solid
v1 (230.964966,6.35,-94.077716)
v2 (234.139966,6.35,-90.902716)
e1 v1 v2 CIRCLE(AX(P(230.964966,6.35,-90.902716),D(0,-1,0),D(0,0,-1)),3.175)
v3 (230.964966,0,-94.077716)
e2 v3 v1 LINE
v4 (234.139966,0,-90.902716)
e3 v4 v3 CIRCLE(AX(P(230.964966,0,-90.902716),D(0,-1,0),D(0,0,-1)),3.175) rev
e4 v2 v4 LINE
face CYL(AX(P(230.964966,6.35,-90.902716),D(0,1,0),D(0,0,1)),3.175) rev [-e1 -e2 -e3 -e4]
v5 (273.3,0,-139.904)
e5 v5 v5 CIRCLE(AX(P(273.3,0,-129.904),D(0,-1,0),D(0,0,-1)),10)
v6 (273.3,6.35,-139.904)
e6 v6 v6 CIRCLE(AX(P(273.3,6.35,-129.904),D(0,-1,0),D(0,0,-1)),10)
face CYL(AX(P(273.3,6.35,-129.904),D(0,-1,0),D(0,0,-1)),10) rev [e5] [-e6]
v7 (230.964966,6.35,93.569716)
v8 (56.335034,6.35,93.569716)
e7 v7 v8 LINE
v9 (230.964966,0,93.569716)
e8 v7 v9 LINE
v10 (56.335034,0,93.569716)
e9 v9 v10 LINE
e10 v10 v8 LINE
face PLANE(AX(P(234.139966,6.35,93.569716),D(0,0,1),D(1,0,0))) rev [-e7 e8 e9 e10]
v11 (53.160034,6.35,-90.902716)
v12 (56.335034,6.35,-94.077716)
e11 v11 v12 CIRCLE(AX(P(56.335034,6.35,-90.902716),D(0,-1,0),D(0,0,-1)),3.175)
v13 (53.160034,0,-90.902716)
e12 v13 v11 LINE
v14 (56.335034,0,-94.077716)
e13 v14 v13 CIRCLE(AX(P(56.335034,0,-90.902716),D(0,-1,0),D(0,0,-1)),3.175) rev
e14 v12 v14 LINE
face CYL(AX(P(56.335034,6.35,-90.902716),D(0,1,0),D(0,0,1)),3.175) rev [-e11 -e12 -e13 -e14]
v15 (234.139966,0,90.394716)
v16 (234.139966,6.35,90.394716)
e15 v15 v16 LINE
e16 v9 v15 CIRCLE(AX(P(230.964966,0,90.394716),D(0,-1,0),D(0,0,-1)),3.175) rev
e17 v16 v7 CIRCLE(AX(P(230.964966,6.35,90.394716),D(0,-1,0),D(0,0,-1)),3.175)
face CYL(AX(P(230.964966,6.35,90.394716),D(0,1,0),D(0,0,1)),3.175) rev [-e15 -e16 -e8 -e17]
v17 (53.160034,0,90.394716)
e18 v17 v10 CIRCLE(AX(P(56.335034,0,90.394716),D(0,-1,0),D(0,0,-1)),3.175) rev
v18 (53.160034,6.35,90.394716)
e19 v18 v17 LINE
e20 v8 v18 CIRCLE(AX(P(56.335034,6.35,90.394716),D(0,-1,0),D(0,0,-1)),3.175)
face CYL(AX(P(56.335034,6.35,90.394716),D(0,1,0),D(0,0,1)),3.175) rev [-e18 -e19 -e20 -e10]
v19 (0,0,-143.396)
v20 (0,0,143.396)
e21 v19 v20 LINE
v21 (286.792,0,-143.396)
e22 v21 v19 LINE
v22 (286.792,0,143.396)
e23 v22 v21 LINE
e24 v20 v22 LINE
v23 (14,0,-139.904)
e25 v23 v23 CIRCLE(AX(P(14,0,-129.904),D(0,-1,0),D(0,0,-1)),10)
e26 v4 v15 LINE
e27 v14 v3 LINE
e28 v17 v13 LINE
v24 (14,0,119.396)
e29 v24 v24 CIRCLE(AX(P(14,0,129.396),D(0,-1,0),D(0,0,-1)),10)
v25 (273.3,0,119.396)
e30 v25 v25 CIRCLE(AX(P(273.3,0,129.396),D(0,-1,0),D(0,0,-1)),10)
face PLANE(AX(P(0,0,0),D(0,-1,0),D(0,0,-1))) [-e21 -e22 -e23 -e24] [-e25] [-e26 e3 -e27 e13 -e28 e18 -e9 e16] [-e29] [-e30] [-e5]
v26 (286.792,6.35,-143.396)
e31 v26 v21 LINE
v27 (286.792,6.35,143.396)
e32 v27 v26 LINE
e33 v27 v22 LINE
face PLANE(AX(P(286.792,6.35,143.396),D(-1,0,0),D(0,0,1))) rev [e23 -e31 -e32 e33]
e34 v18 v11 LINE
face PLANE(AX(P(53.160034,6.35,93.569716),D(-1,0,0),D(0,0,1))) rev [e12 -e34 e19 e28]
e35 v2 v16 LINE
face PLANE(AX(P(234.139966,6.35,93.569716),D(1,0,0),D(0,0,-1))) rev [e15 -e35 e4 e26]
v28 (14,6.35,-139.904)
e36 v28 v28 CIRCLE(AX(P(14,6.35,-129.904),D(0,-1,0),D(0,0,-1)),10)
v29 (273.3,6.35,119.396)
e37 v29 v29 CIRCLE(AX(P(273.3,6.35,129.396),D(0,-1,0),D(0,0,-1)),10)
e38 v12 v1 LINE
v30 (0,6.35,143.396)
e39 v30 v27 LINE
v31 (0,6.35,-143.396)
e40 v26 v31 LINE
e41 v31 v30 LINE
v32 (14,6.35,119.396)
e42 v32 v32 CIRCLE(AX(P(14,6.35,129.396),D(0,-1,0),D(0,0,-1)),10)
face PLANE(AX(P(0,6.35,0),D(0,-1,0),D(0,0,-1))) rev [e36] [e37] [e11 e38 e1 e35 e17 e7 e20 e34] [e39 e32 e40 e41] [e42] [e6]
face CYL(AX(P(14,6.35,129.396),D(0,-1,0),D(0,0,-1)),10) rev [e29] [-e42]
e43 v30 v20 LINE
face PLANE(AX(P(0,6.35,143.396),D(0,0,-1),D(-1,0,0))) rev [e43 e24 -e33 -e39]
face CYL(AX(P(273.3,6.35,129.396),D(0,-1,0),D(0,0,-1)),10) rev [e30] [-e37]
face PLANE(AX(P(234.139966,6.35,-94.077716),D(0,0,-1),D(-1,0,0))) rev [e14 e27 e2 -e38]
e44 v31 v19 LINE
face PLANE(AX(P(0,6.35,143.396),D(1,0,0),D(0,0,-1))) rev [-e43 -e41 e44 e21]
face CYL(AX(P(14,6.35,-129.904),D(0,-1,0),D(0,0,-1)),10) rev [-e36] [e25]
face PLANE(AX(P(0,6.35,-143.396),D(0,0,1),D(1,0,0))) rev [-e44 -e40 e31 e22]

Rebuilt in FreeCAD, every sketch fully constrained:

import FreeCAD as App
import Part
import Sketcher
Q = App.Units.Quantity


def edges_at(feature, points):
    """Names of the edges that pass closest to the given points."""
    edges = feature.Shape.Edges
    near = lambda p: min(range(len(edges)), key=lambda i: edges[i].distToShape(Part.Vertex(*p))[0])
    return sorted({f"Edge{near(p) + 1}" for p in points})

doc = App.newDocument("Part")
body = doc.addObject("PartDesign::Body", "Body")

# Sketch on XZ plane
sketch1 = body.newObject("Sketcher::SketchObject", "Sketch")
sketch1.AttachmentSupport = (doc.getObject("XZ_Plane"), [""])
sketch1.MapMode = "FlatFace"
sketch1.addGeometry([
    Part.LineSegment(App.Vector(0, -143, 0), App.Vector(0, 143, 0)),
    Part.LineSegment(App.Vector(0, 143, 0), App.Vector(287, 143, 0)),
    Part.LineSegment(App.Vector(287, 143, 0), App.Vector(287, -143, 0)),
    Part.LineSegment(App.Vector(287, -143, 0), App.Vector(0, -143, 0)),
], False)
sketch1.addConstraint([
    Sketcher.Constraint("Coincident", 0, 2, 1, 1),
    Sketcher.Constraint("Coincident", 1, 2, 2, 1),
    Sketcher.Constraint("Coincident", 2, 2, 3, 1),
    Sketcher.Constraint("Coincident", 3, 2, 0, 1),
    Sketcher.Constraint("Vertical", 0),
    Sketcher.Constraint("Horizontal", 1),
    Sketcher.Constraint("Vertical", 2),
    Sketcher.Constraint("Horizontal", 3),
    Sketcher.Constraint("Symmetric", 0, 2, 3, 2, -1, 1),
    Sketcher.Constraint("Equal", 3, 0),
    Sketcher.Constraint("DistanceX", 1, 1, 1, 2, Q("286.792 mm")),
])
pad1 = body.newObject("PartDesign::Pad", "Pad")
pad1.Profile = sketch1
pad1.Length = Q("0.25 in")
pad1.Reversed = True

# Sketch on XZ plane
sketch2 = body.newObject("Sketcher::SketchObject", "Sketch001")
sketch2.AttachmentSupport = (doc.getObject("XZ_Plane"), [""])
sketch2.MapMode = "FlatFace"
sketch2.addGeometry([
    Part.Circle(App.Vector(273, -130, 0), App.Vector(0, 0, 1), 10),  # 0
    Part.Circle(App.Vector(14, -130, 0), App.Vector(0, 0, 1), 10),  # 1
    Part.Circle(App.Vector(14, 129, 0), App.Vector(0, 0, 1), 10),  # 2
    Part.Circle(App.Vector(273, 129, 0), App.Vector(0, 0, 1), 10),  # 3
    Part.LineSegment(App.Vector(53, 94, 0), App.Vector(53, -94, 0)),  # 4
    Part.LineSegment(App.Vector(53, -94, 0), App.Vector(234, -94, 0)),  # 5
    Part.LineSegment(App.Vector(234, -94, 0), App.Vector(234, 94, 0)),  # 6
    Part.LineSegment(App.Vector(234, 94, 0), App.Vector(53, 94, 0)),  # 7
], False)
sketch2.addConstraint([
    Sketcher.Constraint("Coincident", 4, 2, 5, 1),
    Sketcher.Constraint("Coincident", 5, 2, 6, 1),
    Sketcher.Constraint("Coincident", 6, 2, 7, 1),
    Sketcher.Constraint("Coincident", 7, 2, 4, 1),
    Sketcher.Constraint("Vertical", 4),
    Sketcher.Constraint("Horizontal", 5),
    Sketcher.Constraint("Vertical", 6),
    Sketcher.Constraint("Horizontal", 7),
    Sketcher.Constraint("Equal", 0, 1),
    Sketcher.Constraint("Equal", 1, 2),
    Sketcher.Constraint("Equal", 2, 3),
    Sketcher.Constraint("Horizontal", 0, 3, 1, 3),
    Sketcher.Constraint("Horizontal", 2, 3, 3, 3),
    Sketcher.Constraint("Vertical", 1, 3, 2, 3),
    Sketcher.Constraint("Vertical", 0, 3, 3, 3),
    Sketcher.Constraint("Diameter", 0, Q("20 mm")),
    Sketcher.Constraint("DistanceX", -1, 1, 0, 3, Q("273.3 mm")),
    Sketcher.Constraint("DistanceY", 0, 3, -1, 1, Q("129.904 mm")),
    Sketcher.Constraint("DistanceX", -1, 1, 1, 3, Q("14 mm")),
    Sketcher.Constraint("DistanceY", -1, 1, 2, 3, Q("129.396 mm")),
    Sketcher.Constraint("DistanceX", 5, 1, 5, 2, Q("180.979932 mm")),
    Sketcher.Constraint("DistanceY", 4, 2, 4, 1, Q("187.647432 mm")),
    Sketcher.Constraint("DistanceX", -1, 1, 4, 2, Q("53.160034 mm")),
    Sketcher.Constraint("DistanceY", 4, 2, -1, 1, Q("94.077716 mm")),
])
pocket1 = body.newObject("PartDesign::Pocket", "Pocket")
pocket1.Profile = sketch2
pocket1.Length = Q("0.25 in")
doc.recompute()

fillet = body.newObject("PartDesign::Fillet", "Fillet")
fillet.Base = (pocket1, edges_at(pocket1, [
    (53.16, 3.175, -94.078),
    (53.16, 3.175, 93.57),
    (234.14, 3.175, 93.57),
    (234.14, 3.175, -94.078),
]))
fillet.Radius = Q("0.125 in")

doc.recompute()
